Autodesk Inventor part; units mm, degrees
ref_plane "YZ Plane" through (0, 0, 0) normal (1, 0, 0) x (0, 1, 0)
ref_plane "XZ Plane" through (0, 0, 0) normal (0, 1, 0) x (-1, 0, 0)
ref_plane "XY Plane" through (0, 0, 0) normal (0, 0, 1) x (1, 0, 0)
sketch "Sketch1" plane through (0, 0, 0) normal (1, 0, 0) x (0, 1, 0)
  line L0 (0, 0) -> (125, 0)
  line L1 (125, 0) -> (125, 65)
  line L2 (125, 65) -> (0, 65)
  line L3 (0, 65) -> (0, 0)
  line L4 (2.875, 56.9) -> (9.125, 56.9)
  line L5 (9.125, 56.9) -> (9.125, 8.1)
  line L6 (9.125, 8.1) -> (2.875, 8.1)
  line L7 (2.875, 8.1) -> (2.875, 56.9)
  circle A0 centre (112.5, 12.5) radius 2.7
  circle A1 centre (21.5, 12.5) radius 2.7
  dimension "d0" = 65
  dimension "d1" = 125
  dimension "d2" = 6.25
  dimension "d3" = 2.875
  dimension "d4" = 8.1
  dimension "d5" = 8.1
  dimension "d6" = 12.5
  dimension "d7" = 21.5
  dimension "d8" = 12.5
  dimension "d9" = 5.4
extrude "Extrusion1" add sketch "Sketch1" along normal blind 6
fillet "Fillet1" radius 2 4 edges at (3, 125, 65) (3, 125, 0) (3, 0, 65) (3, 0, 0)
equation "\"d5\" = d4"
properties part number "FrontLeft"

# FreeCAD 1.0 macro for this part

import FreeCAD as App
import Part
import Sketcher


def edges_at(feature, points):
    """Names of the edges that pass closest to the given points."""
    edges = feature.Shape.Edges
    near = lambda p: min(range(len(edges)), key=lambda i: edges[i].distToShape(Part.Vertex(*p))[0])
    return sorted({f"Edge{near(p) + 1}" for p in points})

doc = App.newDocument("Part")
body = doc.addObject("PartDesign::Body", "Body")

# Sketch on YZ plane
sketch1 = doc.addObject("Sketcher::SketchObject", "Sketch")
body.addObject(sketch1)
sketch1.AttachmentSupport = (doc.YZ_Plane, [""])
sketch1.MapMode = "FlatFace"
sketch1.addGeometry(Part.LineSegment(App.Vector(0, 65, 0), App.Vector(0, 0, 0)), False)
sketch1.addGeometry(Part.LineSegment(App.Vector(0, 0, 0), App.Vector(125, 0, 0)), False)
sketch1.addGeometry(Part.LineSegment(App.Vector(125, 0, 0), App.Vector(125, 65, 0)), False)
sketch1.addGeometry(Part.LineSegment(App.Vector(125, 65, 0), App.Vector(0, 65, 0)), False)
sketch1.addGeometry(Part.Circle(App.Vector(21.5, 12.5, 0), App.Vector(0, 0, 1), 2.7), False)
sketch1.addGeometry(Part.Circle(App.Vector(112.5, 12.5, 0), App.Vector(0, 0, 1), 2.7), False)
sketch1.addGeometry(Part.LineSegment(App.Vector(2.9, 8.1, 0), App.Vector(2.9, 56.9, 0)), False)
sketch1.addGeometry(Part.LineSegment(App.Vector(2.9, 56.9, 0), App.Vector(9.1, 56.9, 0)), False)
sketch1.addGeometry(Part.LineSegment(App.Vector(9.1, 56.9, 0), App.Vector(9.1, 8.1, 0)), False)
sketch1.addGeometry(Part.LineSegment(App.Vector(9.1, 8.1, 0), App.Vector(2.9, 8.1, 0)), False)
sketch1.addConstraint(Sketcher.Constraint("Coincident", 0, 2, 1, 1))
sketch1.addConstraint(Sketcher.Constraint("Coincident", 1, 2, 2, 1))
sketch1.addConstraint(Sketcher.Constraint("Coincident", 2, 2, 3, 1))
sketch1.addConstraint(Sketcher.Constraint("Coincident", 3, 2, 0, 1))
sketch1.addConstraint(Sketcher.Constraint("Coincident", 6, 2, 7, 1))
sketch1.addConstraint(Sketcher.Constraint("Coincident", 7, 2, 8, 1))
sketch1.addConstraint(Sketcher.Constraint("Coincident", 8, 2, 9, 1))
sketch1.addConstraint(Sketcher.Constraint("Coincident", 9, 2, 6, 1))
sketch1.addConstraint(Sketcher.Constraint("Vertical", 0))
sketch1.addConstraint(Sketcher.Constraint("Horizontal", 1))
sketch1.addConstraint(Sketcher.Constraint("Vertical", 2))
sketch1.addConstraint(Sketcher.Constraint("Horizontal", 3))
sketch1.addConstraint(Sketcher.Constraint("Vertical", 6))
sketch1.addConstraint(Sketcher.Constraint("Horizontal", 7))
sketch1.addConstraint(Sketcher.Constraint("Vertical", 8))
sketch1.addConstraint(Sketcher.Constraint("Horizontal", 9))
sketch1.addConstraint(Sketcher.Constraint("Coincident", 0, 2, -1, 1))
sketch1.addConstraint(Sketcher.Constraint("Equal", 4, 5))
sketch1.addConstraint(Sketcher.Constraint("Horizontal", 4, 3, 5, 3))
sketch1.addConstraint(Sketcher.Constraint("Diameter", 4, 5.4))
sketch1.addConstraint(Sketcher.Constraint("DistanceX", 1, 1, 1, 2, 125.0))
sketch1.addConstraint(Sketcher.Constraint("DistanceY", 0, 2, 0, 1, 65.0))
sketch1.addConstraint(Sketcher.Constraint("DistanceX", 7, 1, 7, 2, 6.25))
sketch1.addConstraint(Sketcher.Constraint("DistanceX", -1, 1, 4, 3, 21.5))
sketch1.addConstraint(Sketcher.Constraint("DistanceY", -1, 1, 4, 3, 12.5))
sketch1.addConstraint(Sketcher.Constraint("DistanceY", -1, 1, 8, 2, 8.1))
sketch1.addConstraint(Sketcher.Constraint("DistanceX", 5, 3, 1, 2, 12.5))
sketch1.addConstraint(Sketcher.Constraint("DistanceY", 6, 2, 3, 2, 8.1))
sketch1.addConstraint(Sketcher.Constraint("DistanceX", -1, 1, 6, 2, 2.875))
pad1 = doc.addObject("PartDesign::Pad", "Pad")
body.addObject(pad1)
pad1.Profile = sketch1
pad1.Length = 6
doc.recompute()

fillet = doc.addObject("PartDesign::Fillet", "Fillet")
body.addObject(fillet)
fillet.Base = (pad1, edges_at(pad1, [
    (3, 125, 65),
    (3, 125, 0),
    (3, 0, 65),
    (3, 0, 0),
]))
fillet.Radius = 2

doc.recompute()
